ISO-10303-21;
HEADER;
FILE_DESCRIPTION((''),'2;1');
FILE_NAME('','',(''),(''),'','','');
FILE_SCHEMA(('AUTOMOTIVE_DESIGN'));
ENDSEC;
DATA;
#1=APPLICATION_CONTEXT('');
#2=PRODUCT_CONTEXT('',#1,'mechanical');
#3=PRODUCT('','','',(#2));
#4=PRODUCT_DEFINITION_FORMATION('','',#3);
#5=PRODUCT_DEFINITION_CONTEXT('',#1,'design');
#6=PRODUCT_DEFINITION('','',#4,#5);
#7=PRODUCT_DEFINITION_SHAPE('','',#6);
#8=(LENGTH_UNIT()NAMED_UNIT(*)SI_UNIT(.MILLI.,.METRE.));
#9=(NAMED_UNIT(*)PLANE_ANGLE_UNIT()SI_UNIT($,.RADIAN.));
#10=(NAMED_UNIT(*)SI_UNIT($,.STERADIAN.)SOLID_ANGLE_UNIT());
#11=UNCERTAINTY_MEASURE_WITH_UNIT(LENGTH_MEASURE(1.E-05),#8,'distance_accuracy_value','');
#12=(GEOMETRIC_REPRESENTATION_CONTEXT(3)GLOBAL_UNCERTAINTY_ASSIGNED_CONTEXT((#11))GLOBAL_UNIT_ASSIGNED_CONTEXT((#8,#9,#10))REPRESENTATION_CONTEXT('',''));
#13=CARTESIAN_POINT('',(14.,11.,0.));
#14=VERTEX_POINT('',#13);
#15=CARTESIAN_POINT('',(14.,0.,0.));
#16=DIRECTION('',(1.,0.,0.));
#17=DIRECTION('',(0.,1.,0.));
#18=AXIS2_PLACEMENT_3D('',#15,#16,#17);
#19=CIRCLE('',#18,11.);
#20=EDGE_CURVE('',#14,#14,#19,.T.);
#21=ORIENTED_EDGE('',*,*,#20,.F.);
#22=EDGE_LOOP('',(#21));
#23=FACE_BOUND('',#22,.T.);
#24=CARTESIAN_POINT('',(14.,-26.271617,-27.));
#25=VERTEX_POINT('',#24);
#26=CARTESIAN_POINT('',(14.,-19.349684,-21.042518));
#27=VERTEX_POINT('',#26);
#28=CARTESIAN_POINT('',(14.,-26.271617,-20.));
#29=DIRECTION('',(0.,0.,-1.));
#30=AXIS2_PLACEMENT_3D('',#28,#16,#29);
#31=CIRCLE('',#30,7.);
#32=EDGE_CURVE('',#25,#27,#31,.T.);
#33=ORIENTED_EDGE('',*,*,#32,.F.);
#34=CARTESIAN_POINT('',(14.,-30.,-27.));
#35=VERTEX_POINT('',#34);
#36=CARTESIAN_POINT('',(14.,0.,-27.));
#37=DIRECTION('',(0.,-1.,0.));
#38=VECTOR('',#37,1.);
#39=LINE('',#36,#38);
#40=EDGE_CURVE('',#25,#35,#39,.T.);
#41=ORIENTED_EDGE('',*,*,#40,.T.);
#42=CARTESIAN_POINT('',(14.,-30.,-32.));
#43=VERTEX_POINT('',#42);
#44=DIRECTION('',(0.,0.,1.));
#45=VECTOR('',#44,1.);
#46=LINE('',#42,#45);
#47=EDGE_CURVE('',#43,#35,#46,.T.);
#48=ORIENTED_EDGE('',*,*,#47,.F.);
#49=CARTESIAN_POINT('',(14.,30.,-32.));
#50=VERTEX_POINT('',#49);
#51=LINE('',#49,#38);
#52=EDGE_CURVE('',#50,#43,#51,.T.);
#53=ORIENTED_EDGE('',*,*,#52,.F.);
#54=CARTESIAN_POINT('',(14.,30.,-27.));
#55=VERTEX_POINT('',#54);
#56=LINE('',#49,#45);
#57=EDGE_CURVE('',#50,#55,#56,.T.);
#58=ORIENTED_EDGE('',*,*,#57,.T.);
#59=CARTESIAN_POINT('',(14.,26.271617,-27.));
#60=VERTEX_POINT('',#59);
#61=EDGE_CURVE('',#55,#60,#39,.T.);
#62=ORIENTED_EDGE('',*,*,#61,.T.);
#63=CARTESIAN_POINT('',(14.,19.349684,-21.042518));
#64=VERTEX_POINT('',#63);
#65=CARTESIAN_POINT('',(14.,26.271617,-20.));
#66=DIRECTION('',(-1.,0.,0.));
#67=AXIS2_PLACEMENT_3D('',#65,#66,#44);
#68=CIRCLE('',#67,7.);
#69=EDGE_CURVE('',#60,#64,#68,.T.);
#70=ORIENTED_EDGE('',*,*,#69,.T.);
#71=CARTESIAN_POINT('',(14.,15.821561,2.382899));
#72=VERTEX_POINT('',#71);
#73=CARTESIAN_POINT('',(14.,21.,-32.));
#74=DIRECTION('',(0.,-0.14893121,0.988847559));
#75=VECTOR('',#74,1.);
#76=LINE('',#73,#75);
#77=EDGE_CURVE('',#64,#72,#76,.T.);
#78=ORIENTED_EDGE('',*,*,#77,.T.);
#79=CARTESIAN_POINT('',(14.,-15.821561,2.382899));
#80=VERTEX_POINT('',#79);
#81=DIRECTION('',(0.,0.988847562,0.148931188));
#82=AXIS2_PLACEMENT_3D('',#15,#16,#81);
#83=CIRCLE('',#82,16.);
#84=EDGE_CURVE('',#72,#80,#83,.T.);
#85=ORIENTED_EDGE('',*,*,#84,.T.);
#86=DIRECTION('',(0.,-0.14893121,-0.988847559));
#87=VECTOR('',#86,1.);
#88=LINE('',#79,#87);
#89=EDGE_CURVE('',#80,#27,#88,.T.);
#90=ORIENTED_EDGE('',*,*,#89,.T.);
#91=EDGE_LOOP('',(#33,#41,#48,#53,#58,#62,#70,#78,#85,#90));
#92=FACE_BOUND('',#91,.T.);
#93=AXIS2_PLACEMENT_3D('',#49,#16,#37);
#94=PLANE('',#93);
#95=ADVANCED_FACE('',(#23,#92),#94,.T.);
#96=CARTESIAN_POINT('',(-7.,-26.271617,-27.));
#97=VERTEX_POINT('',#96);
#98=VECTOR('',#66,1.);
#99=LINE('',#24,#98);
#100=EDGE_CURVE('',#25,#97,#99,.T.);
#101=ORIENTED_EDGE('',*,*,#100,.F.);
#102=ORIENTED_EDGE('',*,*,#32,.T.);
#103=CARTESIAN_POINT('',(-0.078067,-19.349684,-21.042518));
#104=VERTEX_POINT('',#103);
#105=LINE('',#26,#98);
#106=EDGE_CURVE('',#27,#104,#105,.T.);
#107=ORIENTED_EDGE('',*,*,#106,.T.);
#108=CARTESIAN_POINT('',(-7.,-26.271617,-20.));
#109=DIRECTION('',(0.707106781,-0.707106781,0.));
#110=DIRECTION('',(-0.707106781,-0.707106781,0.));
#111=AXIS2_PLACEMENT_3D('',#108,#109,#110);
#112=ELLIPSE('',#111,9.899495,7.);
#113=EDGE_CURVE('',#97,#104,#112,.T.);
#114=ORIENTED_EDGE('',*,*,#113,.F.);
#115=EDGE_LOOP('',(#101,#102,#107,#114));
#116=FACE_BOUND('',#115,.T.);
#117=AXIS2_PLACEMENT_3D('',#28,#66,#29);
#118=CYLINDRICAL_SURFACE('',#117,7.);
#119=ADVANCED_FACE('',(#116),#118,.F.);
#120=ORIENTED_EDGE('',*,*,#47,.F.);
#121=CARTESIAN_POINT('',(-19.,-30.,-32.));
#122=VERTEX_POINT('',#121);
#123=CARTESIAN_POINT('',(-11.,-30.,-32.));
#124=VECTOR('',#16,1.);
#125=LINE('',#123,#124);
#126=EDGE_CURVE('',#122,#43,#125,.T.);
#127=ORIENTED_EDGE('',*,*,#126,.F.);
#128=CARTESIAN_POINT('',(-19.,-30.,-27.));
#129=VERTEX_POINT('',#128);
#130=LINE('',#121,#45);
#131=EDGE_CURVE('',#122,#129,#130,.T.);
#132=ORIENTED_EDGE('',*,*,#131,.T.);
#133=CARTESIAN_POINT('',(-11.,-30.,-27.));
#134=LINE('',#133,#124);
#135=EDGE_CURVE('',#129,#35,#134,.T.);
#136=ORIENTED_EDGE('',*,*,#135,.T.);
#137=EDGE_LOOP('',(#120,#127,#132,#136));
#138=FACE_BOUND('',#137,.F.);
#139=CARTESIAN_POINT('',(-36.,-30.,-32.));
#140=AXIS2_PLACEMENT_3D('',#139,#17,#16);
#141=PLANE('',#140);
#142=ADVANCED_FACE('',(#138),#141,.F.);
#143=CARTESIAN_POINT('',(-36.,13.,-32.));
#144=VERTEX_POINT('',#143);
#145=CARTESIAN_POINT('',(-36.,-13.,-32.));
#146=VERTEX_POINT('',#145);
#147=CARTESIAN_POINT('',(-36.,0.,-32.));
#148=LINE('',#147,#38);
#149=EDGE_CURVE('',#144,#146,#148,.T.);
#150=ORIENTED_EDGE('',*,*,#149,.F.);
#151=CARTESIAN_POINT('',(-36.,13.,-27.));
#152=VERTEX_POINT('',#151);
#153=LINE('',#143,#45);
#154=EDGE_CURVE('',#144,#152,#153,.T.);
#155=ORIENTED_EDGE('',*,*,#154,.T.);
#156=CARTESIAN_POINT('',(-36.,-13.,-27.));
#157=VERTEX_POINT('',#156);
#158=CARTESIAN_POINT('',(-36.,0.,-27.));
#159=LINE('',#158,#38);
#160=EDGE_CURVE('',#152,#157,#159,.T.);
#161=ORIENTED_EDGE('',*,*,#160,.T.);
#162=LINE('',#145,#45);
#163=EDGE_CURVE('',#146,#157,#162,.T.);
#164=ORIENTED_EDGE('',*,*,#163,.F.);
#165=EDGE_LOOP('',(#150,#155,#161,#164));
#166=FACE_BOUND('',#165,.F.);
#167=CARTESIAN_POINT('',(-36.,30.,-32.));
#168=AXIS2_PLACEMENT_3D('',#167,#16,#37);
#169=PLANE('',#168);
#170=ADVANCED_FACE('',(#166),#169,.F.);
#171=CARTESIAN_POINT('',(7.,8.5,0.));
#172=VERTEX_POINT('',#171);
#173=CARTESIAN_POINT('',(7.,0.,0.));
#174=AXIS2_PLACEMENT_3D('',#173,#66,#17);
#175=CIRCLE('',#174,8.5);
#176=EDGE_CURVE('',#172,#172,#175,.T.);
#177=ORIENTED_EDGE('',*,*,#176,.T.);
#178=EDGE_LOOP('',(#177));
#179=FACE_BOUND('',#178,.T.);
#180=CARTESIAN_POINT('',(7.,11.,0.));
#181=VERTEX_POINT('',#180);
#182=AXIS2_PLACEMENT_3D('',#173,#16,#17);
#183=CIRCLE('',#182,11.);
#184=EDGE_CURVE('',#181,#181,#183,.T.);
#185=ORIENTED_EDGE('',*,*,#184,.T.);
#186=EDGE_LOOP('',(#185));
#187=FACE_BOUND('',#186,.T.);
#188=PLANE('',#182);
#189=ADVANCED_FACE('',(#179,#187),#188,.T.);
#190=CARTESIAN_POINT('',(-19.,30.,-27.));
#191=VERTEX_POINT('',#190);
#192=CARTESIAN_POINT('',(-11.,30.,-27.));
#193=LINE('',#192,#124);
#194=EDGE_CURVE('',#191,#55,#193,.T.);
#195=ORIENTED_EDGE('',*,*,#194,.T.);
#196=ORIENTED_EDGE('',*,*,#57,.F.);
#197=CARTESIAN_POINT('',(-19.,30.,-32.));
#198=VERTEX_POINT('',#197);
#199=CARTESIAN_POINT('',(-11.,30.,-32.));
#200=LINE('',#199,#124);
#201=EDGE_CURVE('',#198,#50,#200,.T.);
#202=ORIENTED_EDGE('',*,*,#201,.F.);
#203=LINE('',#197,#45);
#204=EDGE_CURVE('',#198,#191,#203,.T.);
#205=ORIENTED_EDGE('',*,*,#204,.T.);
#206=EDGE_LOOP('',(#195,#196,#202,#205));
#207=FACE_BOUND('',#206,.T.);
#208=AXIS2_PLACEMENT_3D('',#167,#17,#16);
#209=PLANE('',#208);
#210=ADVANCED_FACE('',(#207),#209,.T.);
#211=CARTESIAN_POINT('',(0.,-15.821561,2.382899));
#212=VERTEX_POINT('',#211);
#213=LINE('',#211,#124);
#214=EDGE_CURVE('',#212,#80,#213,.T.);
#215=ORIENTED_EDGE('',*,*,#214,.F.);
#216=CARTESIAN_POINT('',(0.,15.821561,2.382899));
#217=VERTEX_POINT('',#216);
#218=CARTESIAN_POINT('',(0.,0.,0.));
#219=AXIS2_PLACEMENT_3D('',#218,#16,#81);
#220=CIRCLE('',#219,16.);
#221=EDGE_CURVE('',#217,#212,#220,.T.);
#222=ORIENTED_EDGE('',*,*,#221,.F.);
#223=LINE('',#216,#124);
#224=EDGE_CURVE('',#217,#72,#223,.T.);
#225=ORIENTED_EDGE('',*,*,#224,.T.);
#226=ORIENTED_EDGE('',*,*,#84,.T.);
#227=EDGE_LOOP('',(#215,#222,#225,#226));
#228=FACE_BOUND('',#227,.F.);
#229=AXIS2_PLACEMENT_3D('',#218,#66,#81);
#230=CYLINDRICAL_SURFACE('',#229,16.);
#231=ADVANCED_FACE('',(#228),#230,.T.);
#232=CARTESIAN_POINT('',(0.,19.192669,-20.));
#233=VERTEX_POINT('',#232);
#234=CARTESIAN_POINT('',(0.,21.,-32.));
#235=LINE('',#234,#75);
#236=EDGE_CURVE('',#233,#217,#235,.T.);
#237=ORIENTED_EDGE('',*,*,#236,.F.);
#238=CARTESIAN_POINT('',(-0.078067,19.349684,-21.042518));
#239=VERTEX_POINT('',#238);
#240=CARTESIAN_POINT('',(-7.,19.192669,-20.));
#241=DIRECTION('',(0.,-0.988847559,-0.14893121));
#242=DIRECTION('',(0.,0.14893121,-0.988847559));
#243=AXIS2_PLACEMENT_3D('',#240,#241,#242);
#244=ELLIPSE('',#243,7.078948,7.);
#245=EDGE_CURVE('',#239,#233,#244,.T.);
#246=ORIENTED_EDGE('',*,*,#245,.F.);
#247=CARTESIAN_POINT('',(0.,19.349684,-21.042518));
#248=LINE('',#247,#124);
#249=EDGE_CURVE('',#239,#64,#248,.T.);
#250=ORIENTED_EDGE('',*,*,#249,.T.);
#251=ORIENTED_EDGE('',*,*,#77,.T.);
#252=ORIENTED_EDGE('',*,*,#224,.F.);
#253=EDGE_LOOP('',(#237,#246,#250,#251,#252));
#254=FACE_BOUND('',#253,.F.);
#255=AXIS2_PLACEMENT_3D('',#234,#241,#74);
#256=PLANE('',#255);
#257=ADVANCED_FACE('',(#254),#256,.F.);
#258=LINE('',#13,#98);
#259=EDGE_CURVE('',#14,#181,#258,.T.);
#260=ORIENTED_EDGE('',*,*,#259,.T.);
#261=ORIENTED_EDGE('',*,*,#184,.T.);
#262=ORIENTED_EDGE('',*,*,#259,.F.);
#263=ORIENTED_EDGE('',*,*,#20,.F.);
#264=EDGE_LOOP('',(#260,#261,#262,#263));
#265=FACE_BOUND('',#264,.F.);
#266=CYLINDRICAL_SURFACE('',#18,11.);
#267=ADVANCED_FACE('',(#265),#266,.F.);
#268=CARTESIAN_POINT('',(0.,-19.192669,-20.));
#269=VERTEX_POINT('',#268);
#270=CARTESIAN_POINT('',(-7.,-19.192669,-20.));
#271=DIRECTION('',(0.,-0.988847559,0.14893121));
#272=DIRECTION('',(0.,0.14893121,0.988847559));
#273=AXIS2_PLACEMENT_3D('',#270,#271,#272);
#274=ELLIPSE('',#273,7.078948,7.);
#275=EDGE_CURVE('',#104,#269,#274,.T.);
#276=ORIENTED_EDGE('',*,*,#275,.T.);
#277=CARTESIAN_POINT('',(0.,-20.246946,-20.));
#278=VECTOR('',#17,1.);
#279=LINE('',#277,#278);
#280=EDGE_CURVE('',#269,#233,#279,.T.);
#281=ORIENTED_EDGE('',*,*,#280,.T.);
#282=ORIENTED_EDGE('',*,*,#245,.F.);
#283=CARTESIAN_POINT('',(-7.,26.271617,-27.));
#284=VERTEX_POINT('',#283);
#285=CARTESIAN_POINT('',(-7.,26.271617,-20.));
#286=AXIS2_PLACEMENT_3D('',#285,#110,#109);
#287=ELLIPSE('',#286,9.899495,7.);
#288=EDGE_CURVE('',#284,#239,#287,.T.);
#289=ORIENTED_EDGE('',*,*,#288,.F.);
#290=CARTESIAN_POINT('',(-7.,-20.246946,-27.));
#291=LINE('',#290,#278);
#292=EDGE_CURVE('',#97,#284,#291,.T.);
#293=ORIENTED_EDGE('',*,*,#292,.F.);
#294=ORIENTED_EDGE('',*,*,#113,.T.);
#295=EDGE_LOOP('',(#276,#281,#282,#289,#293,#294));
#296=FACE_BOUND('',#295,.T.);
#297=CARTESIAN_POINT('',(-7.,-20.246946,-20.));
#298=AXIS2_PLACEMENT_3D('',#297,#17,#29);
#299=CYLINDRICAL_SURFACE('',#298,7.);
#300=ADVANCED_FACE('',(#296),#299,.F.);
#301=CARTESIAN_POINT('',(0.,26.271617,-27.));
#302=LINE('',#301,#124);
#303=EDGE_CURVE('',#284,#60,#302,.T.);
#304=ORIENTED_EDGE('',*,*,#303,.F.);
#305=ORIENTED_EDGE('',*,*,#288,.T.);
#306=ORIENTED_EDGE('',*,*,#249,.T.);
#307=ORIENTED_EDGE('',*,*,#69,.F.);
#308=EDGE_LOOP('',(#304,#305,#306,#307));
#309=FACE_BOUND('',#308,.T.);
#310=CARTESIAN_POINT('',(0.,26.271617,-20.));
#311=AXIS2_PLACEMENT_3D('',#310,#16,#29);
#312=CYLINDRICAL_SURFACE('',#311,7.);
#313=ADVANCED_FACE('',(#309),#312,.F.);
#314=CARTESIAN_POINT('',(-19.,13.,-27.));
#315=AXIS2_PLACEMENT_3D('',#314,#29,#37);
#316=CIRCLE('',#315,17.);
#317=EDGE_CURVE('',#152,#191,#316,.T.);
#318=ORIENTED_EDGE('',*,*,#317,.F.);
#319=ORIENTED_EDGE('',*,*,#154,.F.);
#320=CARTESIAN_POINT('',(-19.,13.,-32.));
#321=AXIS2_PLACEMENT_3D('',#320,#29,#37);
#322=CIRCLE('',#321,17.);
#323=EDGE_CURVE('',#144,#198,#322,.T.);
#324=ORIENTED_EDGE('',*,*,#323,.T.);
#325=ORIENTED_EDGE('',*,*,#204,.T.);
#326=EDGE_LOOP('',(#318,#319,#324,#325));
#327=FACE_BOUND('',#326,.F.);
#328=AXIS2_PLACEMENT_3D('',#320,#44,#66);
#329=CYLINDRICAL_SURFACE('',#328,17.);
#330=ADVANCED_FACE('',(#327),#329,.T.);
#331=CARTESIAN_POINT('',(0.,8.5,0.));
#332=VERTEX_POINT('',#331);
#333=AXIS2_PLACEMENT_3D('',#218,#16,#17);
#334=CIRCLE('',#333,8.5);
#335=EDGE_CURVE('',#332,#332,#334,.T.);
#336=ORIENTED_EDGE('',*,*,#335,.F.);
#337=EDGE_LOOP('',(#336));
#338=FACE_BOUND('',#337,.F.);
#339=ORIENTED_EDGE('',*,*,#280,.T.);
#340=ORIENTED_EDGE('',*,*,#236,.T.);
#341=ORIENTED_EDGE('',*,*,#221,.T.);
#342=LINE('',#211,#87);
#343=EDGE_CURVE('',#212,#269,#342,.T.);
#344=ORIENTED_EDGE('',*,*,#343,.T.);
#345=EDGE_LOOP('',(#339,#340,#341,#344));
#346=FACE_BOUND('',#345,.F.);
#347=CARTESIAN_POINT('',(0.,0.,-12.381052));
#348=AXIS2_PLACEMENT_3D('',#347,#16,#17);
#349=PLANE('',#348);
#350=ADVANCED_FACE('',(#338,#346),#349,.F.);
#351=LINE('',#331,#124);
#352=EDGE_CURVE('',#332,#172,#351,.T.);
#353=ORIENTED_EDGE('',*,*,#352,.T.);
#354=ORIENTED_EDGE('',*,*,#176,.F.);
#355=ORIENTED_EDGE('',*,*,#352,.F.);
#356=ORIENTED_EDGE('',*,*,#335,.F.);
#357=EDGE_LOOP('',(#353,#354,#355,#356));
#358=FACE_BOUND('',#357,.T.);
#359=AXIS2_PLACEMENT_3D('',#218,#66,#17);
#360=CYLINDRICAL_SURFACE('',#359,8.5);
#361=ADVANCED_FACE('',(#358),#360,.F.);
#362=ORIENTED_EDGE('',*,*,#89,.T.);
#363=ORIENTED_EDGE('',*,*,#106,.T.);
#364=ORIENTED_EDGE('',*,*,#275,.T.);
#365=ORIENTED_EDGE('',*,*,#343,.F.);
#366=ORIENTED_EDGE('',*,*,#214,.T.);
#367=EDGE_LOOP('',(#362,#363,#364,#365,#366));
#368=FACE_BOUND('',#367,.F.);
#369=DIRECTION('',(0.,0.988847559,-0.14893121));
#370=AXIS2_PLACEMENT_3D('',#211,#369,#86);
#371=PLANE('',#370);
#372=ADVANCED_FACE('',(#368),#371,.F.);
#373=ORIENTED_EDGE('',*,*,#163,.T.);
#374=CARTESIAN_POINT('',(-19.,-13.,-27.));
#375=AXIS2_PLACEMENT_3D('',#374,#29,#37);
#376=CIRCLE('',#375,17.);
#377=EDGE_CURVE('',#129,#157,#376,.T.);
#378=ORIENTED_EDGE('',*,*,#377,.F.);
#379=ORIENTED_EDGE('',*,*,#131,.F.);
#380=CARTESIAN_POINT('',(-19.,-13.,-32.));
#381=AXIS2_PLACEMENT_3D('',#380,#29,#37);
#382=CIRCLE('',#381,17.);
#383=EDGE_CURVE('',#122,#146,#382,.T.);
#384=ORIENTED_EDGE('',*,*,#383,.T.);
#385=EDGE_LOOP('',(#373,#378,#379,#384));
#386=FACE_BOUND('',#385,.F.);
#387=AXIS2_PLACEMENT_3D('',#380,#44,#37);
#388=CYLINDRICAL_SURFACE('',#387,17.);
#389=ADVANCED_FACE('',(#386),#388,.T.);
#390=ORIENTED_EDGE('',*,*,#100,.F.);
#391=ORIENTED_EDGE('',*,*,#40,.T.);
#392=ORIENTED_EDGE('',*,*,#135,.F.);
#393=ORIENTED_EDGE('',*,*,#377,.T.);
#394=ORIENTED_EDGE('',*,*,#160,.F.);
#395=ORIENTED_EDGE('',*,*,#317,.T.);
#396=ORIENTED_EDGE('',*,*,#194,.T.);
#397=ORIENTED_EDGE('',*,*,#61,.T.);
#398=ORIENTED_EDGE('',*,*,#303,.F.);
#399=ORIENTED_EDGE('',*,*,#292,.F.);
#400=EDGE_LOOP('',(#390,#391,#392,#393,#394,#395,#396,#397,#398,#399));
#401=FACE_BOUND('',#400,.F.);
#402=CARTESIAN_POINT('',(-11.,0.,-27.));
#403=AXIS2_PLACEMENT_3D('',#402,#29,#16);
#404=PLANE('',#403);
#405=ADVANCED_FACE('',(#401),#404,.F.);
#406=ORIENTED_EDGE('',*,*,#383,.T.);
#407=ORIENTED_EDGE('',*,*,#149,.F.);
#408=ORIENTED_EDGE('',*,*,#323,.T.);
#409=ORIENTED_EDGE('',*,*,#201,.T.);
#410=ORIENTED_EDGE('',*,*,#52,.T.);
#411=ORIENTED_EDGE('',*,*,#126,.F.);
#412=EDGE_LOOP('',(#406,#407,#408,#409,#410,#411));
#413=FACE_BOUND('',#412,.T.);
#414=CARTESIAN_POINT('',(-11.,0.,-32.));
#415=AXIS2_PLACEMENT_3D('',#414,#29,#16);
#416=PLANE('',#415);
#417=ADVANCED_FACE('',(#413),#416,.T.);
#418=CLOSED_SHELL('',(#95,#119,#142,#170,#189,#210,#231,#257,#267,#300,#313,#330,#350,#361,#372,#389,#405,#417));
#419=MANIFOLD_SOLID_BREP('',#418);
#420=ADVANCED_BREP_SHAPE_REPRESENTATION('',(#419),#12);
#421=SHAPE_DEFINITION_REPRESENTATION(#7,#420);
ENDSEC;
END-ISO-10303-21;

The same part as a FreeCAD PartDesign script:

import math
import FreeCAD as App
import Part
import Sketcher
from FreeCAD import Vector
Q = App.Units.Quantity


def edges_at(feature, points):
    """Names of the edges that pass closest to the given points."""
    edges = feature.Shape.Edges
    near = lambda p: min(range(len(edges)), key=lambda i: edges[i].distToShape(Part.Vertex(*p))[0])
    return sorted({f"Edge{near(p) + 1}" for p in points})


def add_polygon(sketch, points):
    """Adds a closed chain of lines whose ends are joined by coincident constraints."""
    first, n = sketch.GeometryCount, len(points)
    for a, b in zip(points, points[1:] + points[:1]):
        sketch.addGeometry(Part.LineSegment(App.Vector(*a, 0), App.Vector(*b, 0)), False)
    for i in range(n):
        sketch.addConstraint(Sketcher.Constraint("Coincident", first + i, 2, first + (i + 1) % n, 1))

doc = App.newDocument("Part")
params = doc.addObject("Spreadsheet::Sheet", "Params")
for row, (alias, value) in enumerate([
    ("sketch1_diameter", "17 mm"),
    ("sketch1_radius", "16 mm"),
    ("sketch1_width", "42 mm"),
    ("pad1_length", "14 mm"),
    ("sketch2_diameter", "22 mm"),
    ("pocket1_length", "7 mm"),
    ("sketch3_width", "50 mm"),
    ("sketch3_height", "60 mm"),
    ("pad2_length", "5 mm"),
    ("fillet_radius", "7 mm"),
    ("fillet2_radius", "17 mm"),
], start=1):
    params.set(f"A{row}", alias)
    params.set(f"B{row}", "=" + value)
    params.setAlias(f"B{row}", alias)

body = doc.addObject("PartDesign::Body", "Body")

sketch1 = doc.addObject("Sketcher::SketchObject", "Sketch")
body.addObject(sketch1)
sketch1.AttachmentSupport = (doc.YZ_Plane, [""])
sketch1.MapMode = "FlatFace"
sketch1.addGeometry([
    Part.LineSegment(Vector(21, -32, 0), Vector(16, 2, 0)),
    Part.ArcOfCircle(Part.Circle(Vector(0, 0, 0), Vector(0, 0, 1), 16), math.radians(9), math.radians(171)),
    Part.LineSegment(Vector(-16, 2, 0), Vector(-21, -32, 0)),
    Part.LineSegment(Vector(-21, -32, 0), Vector(21, -32, 0)),
    Part.Circle(Vector(0, 0, 0), Vector(0, 0, 1), 8),
], False)
sketch1.addConstraint([
    Sketcher.Constraint("Tangent", 0, 2, 1, 1),
    Sketcher.Constraint("Tangent", 1, 2, 2, 1),
    Sketcher.Constraint("Coincident", 2, 2, 3, 1),
    Sketcher.Constraint("Coincident", 3, 2, 0, 1),
    Sketcher.Constraint("Horizontal", 3),
    Sketcher.Constraint("Coincident", 1, 3, -1, 1),
    Sketcher.Constraint("Coincident", 4, 3, -1, 1),
    Sketcher.Constraint("Horizontal", 0, 2, 1, 2),
    Sketcher.Constraint("Diameter", 4, Q("17 mm")),
    Sketcher.Constraint("Radius", 1, Q("16 mm")),
    Sketcher.Constraint("DistanceX", 3, 1, 3, 2, Q("42 mm")),
    Sketcher.Constraint("DistanceY", 2, 2, -1, 1, Q("32 mm")),
])
sketch1.setExpression("Constraints[8]", "Params.sketch1_diameter")
sketch1.setExpression("Constraints[9]", "Params.sketch1_radius")
sketch1.setExpression("Constraints[10]", "Params.sketch1_width")
pad1 = doc.addObject("PartDesign::Pad", "Pad")
body.addObject(pad1)
pad1.Profile = sketch1
pad1.setExpression("Length", "Params.pad1_length")

sketch2 = doc.addObject("Sketcher::SketchObject", "Sketch001")
body.addObject(sketch2)
sketch2.AttachmentSupport = (doc.YZ_Plane, [""])
sketch2.MapMode = "FlatFace"
sketch2.AttachmentOffset = App.Placement(Vector(0, 0, 14), App.Rotation())
sketch2.addGeometry(Part.Circle(Vector(0, 0, 0), Vector(0, 0, 1), 11), False)
sketch2.addConstraint([
    Sketcher.Constraint("Coincident", 0, 3, -1, 1),
    Sketcher.Constraint("Diameter", 0, Q("22 mm")),
])
sketch2.setExpression("Constraints[1]", "Params.sketch2_diameter")
pocket1 = doc.addObject("PartDesign::Pocket", "Pocket")
body.addObject(pocket1)
pocket1.Profile = sketch2
pocket1.setExpression("Length", "Params.pocket1_length")

sketch3 = doc.addObject("Sketcher::SketchObject", "Sketch002")
body.addObject(sketch3)
sketch3.AttachmentSupport = (doc.XY_Plane, [""])
sketch3.MapMode = "FlatFace"
sketch3.AttachmentOffset = App.Placement(Vector(0, 0, -32), App.Rotation())
add_polygon(sketch3, [(-36, -30), (-36, 30), (14, 30), (14, -30)])
sketch3.addConstraint([
    Sketcher.Constraint("Vertical", 0),
    Sketcher.Constraint("Horizontal", 1),
    Sketcher.Constraint("Vertical", 2),
    Sketcher.Constraint("Horizontal", 3),
    Sketcher.Constraint("DistanceX", 1, 1, 1, 2, Q("50 mm")),
    Sketcher.Constraint("DistanceY", 0, 1, 0, 2, Q("60 mm")),
    Sketcher.Constraint("DistanceX", 0, 2, -1, 1, Q("36 mm")),
    Sketcher.Constraint("DistanceY", -1, 1, 0, 2, Q("30 mm")),
])
sketch3.setExpression("Constraints[8]", "Params.sketch3_width")
sketch3.setExpression("Constraints[9]", "Params.sketch3_height")
pad2 = doc.addObject("PartDesign::Pad", "Pad001")
body.addObject(pad2)
pad2.Profile = sketch3
pad2.setExpression("Length", "Params.pad2_length")
doc.recompute()

fillet = doc.addObject("PartDesign::Fillet", "Fillet")
body.addObject(fillet)
fillet.Base = (pad2, edges_at(pad2, [(7, -20.247, -27), (0, 0, -27), (7, 20.247, -27)]))
fillet.setExpression("Radius", "Params.fillet_radius")
doc.recompute()

fillet2 = doc.addObject("PartDesign::Fillet", "Fillet001")
body.addObject(fillet2)
fillet2.Base = (fillet, edges_at(fillet, [(-36, -30, -29.5), (-36, 30, -29.5)]))
fillet2.setExpression("Radius", "Params.fillet2_radius")

doc.recompute()
